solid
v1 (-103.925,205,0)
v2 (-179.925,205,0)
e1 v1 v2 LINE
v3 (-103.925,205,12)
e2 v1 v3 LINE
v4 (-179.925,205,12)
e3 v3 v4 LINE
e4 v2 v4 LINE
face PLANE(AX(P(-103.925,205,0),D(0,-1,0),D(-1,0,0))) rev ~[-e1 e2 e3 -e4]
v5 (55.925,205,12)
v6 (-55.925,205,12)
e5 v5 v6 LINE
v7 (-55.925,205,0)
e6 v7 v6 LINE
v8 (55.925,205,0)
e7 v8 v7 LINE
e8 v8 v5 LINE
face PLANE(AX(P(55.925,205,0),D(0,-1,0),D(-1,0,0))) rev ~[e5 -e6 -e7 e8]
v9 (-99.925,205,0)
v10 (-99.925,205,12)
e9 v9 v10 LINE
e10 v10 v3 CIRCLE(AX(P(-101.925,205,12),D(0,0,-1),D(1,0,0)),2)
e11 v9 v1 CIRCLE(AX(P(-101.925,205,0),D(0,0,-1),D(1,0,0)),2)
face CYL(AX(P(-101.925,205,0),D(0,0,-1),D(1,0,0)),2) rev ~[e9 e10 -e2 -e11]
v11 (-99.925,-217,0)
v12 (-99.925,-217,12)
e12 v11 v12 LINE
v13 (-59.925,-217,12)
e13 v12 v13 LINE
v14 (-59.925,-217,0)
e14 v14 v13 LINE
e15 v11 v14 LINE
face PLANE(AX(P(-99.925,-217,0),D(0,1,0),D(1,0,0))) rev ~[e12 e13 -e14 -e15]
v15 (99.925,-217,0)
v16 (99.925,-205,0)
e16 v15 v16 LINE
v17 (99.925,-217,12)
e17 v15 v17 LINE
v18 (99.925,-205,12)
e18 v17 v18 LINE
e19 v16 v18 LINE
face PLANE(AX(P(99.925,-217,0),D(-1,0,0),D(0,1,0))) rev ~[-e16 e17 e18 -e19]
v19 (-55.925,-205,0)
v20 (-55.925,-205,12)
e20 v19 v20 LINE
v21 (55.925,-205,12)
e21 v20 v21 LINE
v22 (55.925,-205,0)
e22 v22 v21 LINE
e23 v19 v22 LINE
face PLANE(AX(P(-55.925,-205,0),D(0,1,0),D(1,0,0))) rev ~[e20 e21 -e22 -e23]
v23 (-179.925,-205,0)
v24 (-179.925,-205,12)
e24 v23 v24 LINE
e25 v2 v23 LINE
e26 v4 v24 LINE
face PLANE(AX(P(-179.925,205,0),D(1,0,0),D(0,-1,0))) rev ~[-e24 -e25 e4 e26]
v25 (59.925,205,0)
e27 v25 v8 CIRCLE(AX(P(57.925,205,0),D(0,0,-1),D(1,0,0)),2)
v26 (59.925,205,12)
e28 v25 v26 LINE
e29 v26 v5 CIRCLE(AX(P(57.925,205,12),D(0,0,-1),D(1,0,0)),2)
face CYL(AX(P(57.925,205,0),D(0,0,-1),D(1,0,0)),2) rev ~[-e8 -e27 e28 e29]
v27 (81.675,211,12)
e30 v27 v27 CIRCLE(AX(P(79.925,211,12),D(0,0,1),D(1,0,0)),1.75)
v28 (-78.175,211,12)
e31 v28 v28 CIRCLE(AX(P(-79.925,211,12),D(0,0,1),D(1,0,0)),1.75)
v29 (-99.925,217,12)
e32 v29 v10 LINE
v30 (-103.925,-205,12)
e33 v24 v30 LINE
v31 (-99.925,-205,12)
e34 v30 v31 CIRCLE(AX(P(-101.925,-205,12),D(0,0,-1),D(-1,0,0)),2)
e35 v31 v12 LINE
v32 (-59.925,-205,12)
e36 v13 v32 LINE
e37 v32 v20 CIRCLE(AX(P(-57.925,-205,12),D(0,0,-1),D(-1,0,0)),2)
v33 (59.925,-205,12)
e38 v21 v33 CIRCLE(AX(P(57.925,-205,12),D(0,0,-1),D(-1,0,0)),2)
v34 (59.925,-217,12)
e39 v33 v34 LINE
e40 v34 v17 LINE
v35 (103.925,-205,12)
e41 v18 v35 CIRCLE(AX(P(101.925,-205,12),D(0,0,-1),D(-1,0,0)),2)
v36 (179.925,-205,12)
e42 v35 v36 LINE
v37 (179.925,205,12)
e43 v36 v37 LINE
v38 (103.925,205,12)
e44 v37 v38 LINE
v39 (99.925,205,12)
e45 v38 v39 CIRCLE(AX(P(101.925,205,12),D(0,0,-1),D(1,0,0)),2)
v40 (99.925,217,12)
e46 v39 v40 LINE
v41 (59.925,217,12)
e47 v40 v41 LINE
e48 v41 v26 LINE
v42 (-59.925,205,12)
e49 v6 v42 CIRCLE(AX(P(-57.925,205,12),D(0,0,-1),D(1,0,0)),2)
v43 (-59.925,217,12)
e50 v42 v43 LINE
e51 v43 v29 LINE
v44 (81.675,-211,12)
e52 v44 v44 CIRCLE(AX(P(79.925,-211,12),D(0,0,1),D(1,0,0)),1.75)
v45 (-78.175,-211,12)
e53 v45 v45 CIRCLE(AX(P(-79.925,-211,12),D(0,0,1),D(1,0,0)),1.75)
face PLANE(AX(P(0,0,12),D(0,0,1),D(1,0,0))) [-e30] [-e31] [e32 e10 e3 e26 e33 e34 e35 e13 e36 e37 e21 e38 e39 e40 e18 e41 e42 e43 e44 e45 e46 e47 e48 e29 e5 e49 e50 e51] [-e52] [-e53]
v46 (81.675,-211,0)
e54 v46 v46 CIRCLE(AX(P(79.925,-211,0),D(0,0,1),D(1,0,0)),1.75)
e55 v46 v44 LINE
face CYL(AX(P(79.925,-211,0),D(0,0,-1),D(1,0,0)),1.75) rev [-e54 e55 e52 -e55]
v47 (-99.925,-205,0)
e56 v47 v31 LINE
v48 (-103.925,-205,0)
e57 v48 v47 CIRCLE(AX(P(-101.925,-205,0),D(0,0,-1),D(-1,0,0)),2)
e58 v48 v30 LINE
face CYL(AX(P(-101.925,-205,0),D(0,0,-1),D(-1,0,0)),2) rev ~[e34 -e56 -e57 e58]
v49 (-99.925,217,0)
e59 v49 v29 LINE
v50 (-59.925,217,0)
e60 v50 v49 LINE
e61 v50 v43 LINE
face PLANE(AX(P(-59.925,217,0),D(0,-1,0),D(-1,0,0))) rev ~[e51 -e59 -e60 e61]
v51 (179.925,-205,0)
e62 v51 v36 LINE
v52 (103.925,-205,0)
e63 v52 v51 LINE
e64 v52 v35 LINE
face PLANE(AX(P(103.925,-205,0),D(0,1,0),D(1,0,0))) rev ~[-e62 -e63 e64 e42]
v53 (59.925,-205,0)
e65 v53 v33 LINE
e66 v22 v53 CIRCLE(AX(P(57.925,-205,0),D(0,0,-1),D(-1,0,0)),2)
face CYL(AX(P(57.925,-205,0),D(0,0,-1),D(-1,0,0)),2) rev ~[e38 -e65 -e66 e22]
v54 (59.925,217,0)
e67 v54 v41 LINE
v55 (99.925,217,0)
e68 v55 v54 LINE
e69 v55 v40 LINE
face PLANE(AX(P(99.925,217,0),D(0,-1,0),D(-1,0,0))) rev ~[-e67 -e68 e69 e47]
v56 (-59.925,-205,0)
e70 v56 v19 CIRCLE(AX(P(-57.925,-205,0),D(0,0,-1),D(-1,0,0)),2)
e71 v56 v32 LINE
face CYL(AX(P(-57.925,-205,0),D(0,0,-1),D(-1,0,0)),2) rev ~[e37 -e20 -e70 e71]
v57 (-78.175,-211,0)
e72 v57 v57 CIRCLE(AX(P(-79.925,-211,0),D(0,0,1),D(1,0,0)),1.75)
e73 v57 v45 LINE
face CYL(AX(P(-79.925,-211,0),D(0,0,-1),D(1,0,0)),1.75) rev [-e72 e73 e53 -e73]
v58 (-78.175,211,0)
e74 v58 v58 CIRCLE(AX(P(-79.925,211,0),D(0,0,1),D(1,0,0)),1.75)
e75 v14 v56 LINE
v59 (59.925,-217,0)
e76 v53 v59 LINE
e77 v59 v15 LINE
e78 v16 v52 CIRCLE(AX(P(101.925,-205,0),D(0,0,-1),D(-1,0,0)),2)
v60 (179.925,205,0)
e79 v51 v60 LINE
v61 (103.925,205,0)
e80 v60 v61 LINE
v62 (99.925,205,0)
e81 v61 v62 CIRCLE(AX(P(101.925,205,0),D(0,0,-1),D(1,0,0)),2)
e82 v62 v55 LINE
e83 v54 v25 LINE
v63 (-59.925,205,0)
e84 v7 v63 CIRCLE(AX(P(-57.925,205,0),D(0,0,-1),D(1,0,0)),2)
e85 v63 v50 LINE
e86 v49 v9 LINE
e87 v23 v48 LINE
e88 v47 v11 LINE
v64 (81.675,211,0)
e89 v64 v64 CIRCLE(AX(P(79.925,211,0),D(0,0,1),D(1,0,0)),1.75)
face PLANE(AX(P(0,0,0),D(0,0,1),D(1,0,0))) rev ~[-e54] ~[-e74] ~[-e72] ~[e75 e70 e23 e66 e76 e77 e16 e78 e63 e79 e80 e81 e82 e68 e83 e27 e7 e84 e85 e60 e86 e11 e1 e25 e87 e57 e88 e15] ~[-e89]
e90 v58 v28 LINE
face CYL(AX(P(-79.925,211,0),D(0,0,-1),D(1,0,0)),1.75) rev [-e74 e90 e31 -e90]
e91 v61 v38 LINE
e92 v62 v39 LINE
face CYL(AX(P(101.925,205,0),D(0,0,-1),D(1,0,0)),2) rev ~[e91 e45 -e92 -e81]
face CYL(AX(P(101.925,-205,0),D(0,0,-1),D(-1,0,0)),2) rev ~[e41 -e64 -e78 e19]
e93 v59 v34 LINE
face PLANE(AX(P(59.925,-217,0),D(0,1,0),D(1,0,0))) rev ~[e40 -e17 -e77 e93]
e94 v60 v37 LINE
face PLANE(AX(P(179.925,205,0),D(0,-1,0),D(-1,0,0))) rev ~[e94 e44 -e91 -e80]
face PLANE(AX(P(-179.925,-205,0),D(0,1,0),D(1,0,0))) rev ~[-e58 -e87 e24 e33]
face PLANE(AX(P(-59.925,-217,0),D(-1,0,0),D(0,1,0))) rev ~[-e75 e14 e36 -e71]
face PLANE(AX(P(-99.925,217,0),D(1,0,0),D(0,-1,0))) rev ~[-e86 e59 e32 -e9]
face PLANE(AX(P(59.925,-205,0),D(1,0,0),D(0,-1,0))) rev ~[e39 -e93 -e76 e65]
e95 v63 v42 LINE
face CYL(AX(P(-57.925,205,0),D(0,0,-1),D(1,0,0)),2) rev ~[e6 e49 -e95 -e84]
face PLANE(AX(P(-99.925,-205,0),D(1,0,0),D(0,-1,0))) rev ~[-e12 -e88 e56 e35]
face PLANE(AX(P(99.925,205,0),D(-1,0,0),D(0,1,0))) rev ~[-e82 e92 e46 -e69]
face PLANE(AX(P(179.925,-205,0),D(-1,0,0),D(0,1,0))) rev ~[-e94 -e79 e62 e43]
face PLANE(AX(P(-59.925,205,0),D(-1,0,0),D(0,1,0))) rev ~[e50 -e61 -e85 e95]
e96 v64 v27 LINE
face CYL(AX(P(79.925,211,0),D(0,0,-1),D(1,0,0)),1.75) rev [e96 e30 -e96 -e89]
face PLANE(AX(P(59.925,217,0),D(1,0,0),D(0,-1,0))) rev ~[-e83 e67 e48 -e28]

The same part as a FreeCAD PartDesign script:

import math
import FreeCAD as App
import Part
import Sketcher

V = App.Vector
Q = App.Units.Quantity

doc = App.newDocument("Part")
body = doc.addObject("PartDesign::Body", "Body")

sketch1 = body.newObject("Sketcher::SketchObject", "Sketch")
sketch1.AttachmentSupport = (doc.getObject("XY_Plane"), [""])
sketch1.MapMode = "FlatFace"
sketch1.addGeometry([
    Part.LineSegment(V(-179.9, 205, 0), V(-179.9, -205, 0)),
    Part.LineSegment(V(-179.9, -205, 0), V(-103.9, -205, 0)),
    Part.ArcOfCircle(Part.Circle(V(-101.9, -205, 0), V(0, 0, 1), 2), math.radians(0), math.radians(180)),
    Part.LineSegment(V(-99.9, -205, 0), V(-99.9, -217, 0)),
    Part.LineSegment(V(-99.9, -217, 0), V(-59.9, -217, 0)),
    Part.LineSegment(V(-59.9, -217, 0), V(-59.9, -205, 0)),
    Part.ArcOfCircle(Part.Circle(V(-57.9, -205, 0), V(0, 0, 1), 2), math.radians(0), math.radians(180)),
    Part.LineSegment(V(-55.9, -205, 0), V(55.9, -205, 0)),
    Part.ArcOfCircle(Part.Circle(V(57.9, -205, 0), V(0, 0, 1), 2), math.radians(0), math.radians(180)),
    Part.LineSegment(V(59.9, -205, 0), V(59.9, -217, 0)),
    Part.LineSegment(V(59.9, -217, 0), V(99.9, -217, 0)),
    Part.LineSegment(V(99.9, -217, 0), V(99.9, -205, 0)),
    Part.ArcOfCircle(Part.Circle(V(101.9, -205, 0), V(0, 0, 1), 2), math.radians(0), math.radians(180)),
    Part.LineSegment(V(103.9, -205, 0), V(179.9, -205, 0)),
    Part.LineSegment(V(179.9, -205, 0), V(179.9, 205, 0)),
    Part.LineSegment(V(179.9, 205, 0), V(103.9, 205, 0)),
    Part.ArcOfCircle(Part.Circle(V(101.9, 205, 0), V(0, 0, 1), 2), math.radians(180), math.radians(360)),
    Part.LineSegment(V(99.9, 205, 0), V(99.9, 217, 0)),
    Part.LineSegment(V(99.9, 217, 0), V(59.9, 217, 0)),
    Part.LineSegment(V(59.9, 217, 0), V(59.9, 205, 0)),
    Part.ArcOfCircle(Part.Circle(V(57.9, 205, 0), V(0, 0, 1), 2), math.radians(180), math.radians(360)),
    Part.LineSegment(V(55.9, 205, 0), V(-55.9, 205, 0)),
    Part.ArcOfCircle(Part.Circle(V(-57.9, 205, 0), V(0, 0, 1), 2), math.radians(180), math.radians(360)),
    Part.LineSegment(V(-59.9, 205, 0), V(-59.9, 217, 0)),
    Part.LineSegment(V(-59.9, 217, 0), V(-99.9, 217, 0)),
    Part.LineSegment(V(-99.9, 217, 0), V(-99.9, 205, 0)),
    Part.ArcOfCircle(Part.Circle(V(-101.9, 205, 0), V(0, 0, 1), 2), math.radians(180), math.radians(360)),
    Part.LineSegment(V(-103.9, 205, 0), V(-179.9, 205, 0)),
    Part.Circle(V(-79.9, -211, 0), V(0, 0, 1), 1.8),
    Part.Circle(V(79.9, -211, 0), V(0, 0, 1), 1.8),
    Part.Circle(V(-79.9, 211, 0), V(0, 0, 1), 1.8),
    Part.Circle(V(79.9, 211, 0), V(0, 0, 1), 1.8),
], False)
sketch1.addConstraint([
    Sketcher.Constraint("Coincident", 0, 2, 1, 1),
    Sketcher.Constraint("Coincident", 1, 2, 2, 2),
    Sketcher.Constraint("Tangent", 2, 1, 3, 1),
    Sketcher.Constraint("Coincident", 3, 2, 4, 1),
    Sketcher.Constraint("Coincident", 4, 2, 5, 1),
    Sketcher.Constraint("Tangent", 5, 2, 6, 2),
    Sketcher.Constraint("Coincident", 6, 1, 7, 1),
    Sketcher.Constraint("Coincident", 7, 2, 8, 2),
    Sketcher.Constraint("Tangent", 8, 1, 9, 1),
    Sketcher.Constraint("Coincident", 9, 2, 10, 1),
    Sketcher.Constraint("Coincident", 10, 2, 11, 1),
    Sketcher.Constraint("Tangent", 11, 2, 12, 2),
    Sketcher.Constraint("Coincident", 12, 1, 13, 1),
    Sketcher.Constraint("Coincident", 13, 2, 14, 1),
    Sketcher.Constraint("Coincident", 14, 2, 15, 1),
    Sketcher.Constraint("Coincident", 15, 2, 16, 2),
    Sketcher.Constraint("Tangent", 16, 1, 17, 1),
    Sketcher.Constraint("Coincident", 17, 2, 18, 1),
    Sketcher.Constraint("Coincident", 18, 2, 19, 1),
    Sketcher.Constraint("Tangent", 19, 2, 20, 2),
    Sketcher.Constraint("Coincident", 20, 1, 21, 1),
    Sketcher.Constraint("Coincident", 21, 2, 22, 2),
    Sketcher.Constraint("Tangent", 22, 1, 23, 1),
    Sketcher.Constraint("Coincident", 23, 2, 24, 1),
    Sketcher.Constraint("Coincident", 24, 2, 25, 1),
    Sketcher.Constraint("Tangent", 25, 2, 26, 2),
    Sketcher.Constraint("Coincident", 26, 1, 27, 1),
    Sketcher.Constraint("Coincident", 27, 2, 0, 1),
    Sketcher.Constraint("Vertical", 0),
    Sketcher.Constraint("Horizontal", 1),
    Sketcher.Constraint("Vertical", 3),
    Sketcher.Constraint("Horizontal", 4),
    Sketcher.Constraint("Vertical", 5),
    Sketcher.Constraint("Horizontal", 7),
    Sketcher.Constraint("Vertical", 9),
    Sketcher.Constraint("Horizontal", 10),
    Sketcher.Constraint("Vertical", 11),
    Sketcher.Constraint("Horizontal", 13),
    Sketcher.Constraint("Vertical", 14),
    Sketcher.Constraint("Horizontal", 15),
    Sketcher.Constraint("Vertical", 17),
    Sketcher.Constraint("Horizontal", 18),
    Sketcher.Constraint("Vertical", 19),
    Sketcher.Constraint("Horizontal", 21),
    Sketcher.Constraint("Vertical", 23),
    Sketcher.Constraint("Horizontal", 24),
    Sketcher.Constraint("Vertical", 25),
    Sketcher.Constraint("Horizontal", 27),
    Sketcher.Constraint("Equal", 2, 6),
    Sketcher.Constraint("Equal", 6, 8),
    Sketcher.Constraint("Equal", 8, 12),
    Sketcher.Constraint("Equal", 12, 16),
    Sketcher.Constraint("Equal", 16, 20),
    Sketcher.Constraint("Equal", 20, 22),
    Sketcher.Constraint("Equal", 22, 26),
    Sketcher.Constraint("Equal", 28, 29),
    Sketcher.Constraint("Equal", 29, 30),
    Sketcher.Constraint("Equal", 30, 31),
    Sketcher.Constraint("Symmetric", 2, 3, 16, 3, -1, 1),
    Sketcher.Constraint("Symmetric", 6, 3, 20, 3, -1, 1),
    Sketcher.Constraint("Symmetric", 8, 3, 22, 3, -1, 1),
    Sketcher.Constraint("Symmetric", 12, 3, 26, 3, -1, 1),
    Sketcher.Constraint("Symmetric", 29, 3, 30, 3, -1, 1),
    Sketcher.Constraint("Symmetric", 28, 3, 31, 3, -1, 1),
    Sketcher.Constraint("Symmetric", 0, 2, 14, 2, -1, 1),
    Sketcher.Constraint("Symmetric", 6, 3, 8, 3, -2),
    Sketcher.Constraint("Symmetric", 2, 3, 12, 3, -2),
    Sketcher.Constraint("Symmetric", 28, 3, 29, 3, -2),
    Sketcher.Constraint("Horizontal", 2, 3, 6, 3),
    Sketcher.Constraint("Horizontal", 12, 3, 0, 2),
    Sketcher.Constraint("Horizontal", 5, 2, 6, 1),
    Sketcher.Constraint("Horizontal", 4, 2, 9, 2),
    Sketcher.Constraint("Horizontal", 11, 2, 12, 1),
    Sketcher.Constraint("Horizontal", 19, 2, 20, 1),
    Sketcher.Constraint("Horizontal", 18, 2, 23, 2),
    Sketcher.Constraint("Horizontal", 25, 2, 26, 1),
    Sketcher.Constraint("Equal", 11, 17),
    Sketcher.Constraint("Radius", 2, Q("2 mm")),
    Sketcher.Constraint("Diameter", 28, Q("3.5 mm")),
    Sketcher.Constraint("DistanceX", 1, 1, 1, 2, Q("76 mm")),
    Sketcher.Constraint("DistanceX", 4, 1, 4, 2, Q("40 mm")),
    Sketcher.Constraint("DistanceY", 0, 2, 0, 1, Q("410 mm")),
    Sketcher.Constraint("DistanceY", 3, 2, 3, 1, Q("12 mm")),
    Sketcher.Constraint("DistanceY", 28, 3, -1, 1, Q("211 mm")),
    Sketcher.Constraint("DistanceX", 2, 3, 28, 3, Q("22 mm")),
    Sketcher.Constraint("DistanceX", 7, 1, 7, 2, Q("111.85 mm")),
])
pad1 = body.newObject("PartDesign::Pad", "Pad")
pad1.Profile = sketch1
pad1.Length = 12

doc.recompute()
